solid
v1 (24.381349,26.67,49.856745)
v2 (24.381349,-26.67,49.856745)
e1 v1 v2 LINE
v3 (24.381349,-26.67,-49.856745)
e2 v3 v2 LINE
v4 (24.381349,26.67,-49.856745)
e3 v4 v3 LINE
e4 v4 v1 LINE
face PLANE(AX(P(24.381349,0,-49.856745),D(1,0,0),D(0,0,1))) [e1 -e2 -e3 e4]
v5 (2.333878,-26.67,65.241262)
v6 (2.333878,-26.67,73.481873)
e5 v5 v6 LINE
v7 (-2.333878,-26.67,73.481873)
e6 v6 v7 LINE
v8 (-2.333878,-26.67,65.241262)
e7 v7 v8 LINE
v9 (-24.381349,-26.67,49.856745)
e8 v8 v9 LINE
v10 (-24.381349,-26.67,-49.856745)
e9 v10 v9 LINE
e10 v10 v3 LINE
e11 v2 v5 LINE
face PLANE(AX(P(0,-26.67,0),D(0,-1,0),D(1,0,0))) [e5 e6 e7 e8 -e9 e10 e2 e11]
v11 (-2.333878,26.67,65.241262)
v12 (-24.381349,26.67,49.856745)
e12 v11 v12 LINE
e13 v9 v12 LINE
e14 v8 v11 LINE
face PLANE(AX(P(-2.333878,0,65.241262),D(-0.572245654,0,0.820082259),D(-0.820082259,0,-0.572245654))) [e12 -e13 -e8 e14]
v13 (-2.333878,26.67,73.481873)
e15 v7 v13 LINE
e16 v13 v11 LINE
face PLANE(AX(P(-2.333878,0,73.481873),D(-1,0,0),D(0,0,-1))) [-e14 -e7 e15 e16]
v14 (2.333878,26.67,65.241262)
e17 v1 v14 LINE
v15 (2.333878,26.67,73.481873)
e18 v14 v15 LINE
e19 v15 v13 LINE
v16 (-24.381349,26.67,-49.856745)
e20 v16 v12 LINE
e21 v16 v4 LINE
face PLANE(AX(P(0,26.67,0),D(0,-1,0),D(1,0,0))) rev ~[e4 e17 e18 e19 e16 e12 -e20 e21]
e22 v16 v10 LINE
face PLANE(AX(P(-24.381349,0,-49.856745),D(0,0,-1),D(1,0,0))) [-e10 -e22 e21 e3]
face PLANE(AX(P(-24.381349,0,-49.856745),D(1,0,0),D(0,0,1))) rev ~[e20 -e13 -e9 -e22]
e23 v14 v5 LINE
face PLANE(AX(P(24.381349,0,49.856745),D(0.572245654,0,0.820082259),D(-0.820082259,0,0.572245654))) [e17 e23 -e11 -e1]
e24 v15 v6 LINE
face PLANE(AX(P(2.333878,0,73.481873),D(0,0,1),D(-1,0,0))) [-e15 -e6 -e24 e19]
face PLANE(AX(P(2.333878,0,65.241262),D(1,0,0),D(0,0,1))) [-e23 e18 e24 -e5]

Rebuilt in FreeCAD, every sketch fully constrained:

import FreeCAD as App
import Part
import Sketcher

V = App.Vector
Q = App.Units.Quantity


def add_polygon(sketch, points):
    """Adds a closed chain of lines whose ends are joined by coincident constraints."""
    first, n = sketch.GeometryCount, len(points)
    for a, b in zip(points, points[1:] + points[:1]):
        sketch.addGeometry(Part.LineSegment(App.Vector(*a, 0), App.Vector(*b, 0)), False)
    for i in range(n):
        sketch.addConstraint(Sketcher.Constraint("Coincident", first + i, 2, first + (i + 1) % n, 1))

doc = App.newDocument("Part")
params = doc.addObject("Spreadsheet::Sheet", "Params")
for row, (alias, value) in enumerate([
    ("pad1_length", "2.1 in"),
], start=1):
    params.set(f"A{row}", alias)
    params.set(f"B{row}", "=" + value)
    params.setAlias(f"B{row}", alias)

body = doc.addObject("PartDesign::Body", "Body")

# Sketch on XZ plane
sketch1 = doc.addObject("Sketcher::SketchObject", "Sketch")
body.addObject(sketch1)
sketch1.AttachmentSupport = (doc.XZ_Plane, [""])
sketch1.MapMode = "FlatFace"
add_polygon(sketch1, [(-24.4, 49.9), (-24.4, -49.9), (24.4, -49.9), (24.4, 49.9), (2.3, 65.2), (2.3, 73.5), (-2.3, 73.5), (-2.3, 65.2)])  # lines 0-7
sketch1.addConstraint([
    Sketcher.Constraint("Vertical", 0),
    Sketcher.Constraint("Horizontal", 1),
    Sketcher.Constraint("Vertical", 2),
    Sketcher.Constraint("Vertical", 4),
    Sketcher.Constraint("Horizontal", 5),
    Sketcher.Constraint("Vertical", 6),
    Sketcher.Constraint("Symmetric", 0, 2, 2, 2, -1, 1),
    Sketcher.Constraint("Symmetric", 3, 2, 6, 2, -2),
    Sketcher.Constraint("Horizontal", 2, 2, 7, 2),
    Sketcher.Constraint("DistanceY", 0, 2, 0, 1, Q("99.71349 mm")),
    Sketcher.Constraint("DistanceY", 4, 1, 4, 2, Q("8.240611 mm")),
    Sketcher.Constraint("DistanceX", 1, 1, 1, 2, Q("48.762698 mm")),
    Sketcher.Constraint("DistanceX", 5, 2, 5, 1, Q("4.667756 mm")),
    Sketcher.Constraint("Distance", 3, Q("26.884463 mm")),
])
pad1 = doc.addObject("PartDesign::Pad", "Pad")
body.addObject(pad1)
pad1.Profile = sketch1
pad1.setExpression("Length", "Params.pad1_length")
pad1.Midplane = True

doc.recompute()
